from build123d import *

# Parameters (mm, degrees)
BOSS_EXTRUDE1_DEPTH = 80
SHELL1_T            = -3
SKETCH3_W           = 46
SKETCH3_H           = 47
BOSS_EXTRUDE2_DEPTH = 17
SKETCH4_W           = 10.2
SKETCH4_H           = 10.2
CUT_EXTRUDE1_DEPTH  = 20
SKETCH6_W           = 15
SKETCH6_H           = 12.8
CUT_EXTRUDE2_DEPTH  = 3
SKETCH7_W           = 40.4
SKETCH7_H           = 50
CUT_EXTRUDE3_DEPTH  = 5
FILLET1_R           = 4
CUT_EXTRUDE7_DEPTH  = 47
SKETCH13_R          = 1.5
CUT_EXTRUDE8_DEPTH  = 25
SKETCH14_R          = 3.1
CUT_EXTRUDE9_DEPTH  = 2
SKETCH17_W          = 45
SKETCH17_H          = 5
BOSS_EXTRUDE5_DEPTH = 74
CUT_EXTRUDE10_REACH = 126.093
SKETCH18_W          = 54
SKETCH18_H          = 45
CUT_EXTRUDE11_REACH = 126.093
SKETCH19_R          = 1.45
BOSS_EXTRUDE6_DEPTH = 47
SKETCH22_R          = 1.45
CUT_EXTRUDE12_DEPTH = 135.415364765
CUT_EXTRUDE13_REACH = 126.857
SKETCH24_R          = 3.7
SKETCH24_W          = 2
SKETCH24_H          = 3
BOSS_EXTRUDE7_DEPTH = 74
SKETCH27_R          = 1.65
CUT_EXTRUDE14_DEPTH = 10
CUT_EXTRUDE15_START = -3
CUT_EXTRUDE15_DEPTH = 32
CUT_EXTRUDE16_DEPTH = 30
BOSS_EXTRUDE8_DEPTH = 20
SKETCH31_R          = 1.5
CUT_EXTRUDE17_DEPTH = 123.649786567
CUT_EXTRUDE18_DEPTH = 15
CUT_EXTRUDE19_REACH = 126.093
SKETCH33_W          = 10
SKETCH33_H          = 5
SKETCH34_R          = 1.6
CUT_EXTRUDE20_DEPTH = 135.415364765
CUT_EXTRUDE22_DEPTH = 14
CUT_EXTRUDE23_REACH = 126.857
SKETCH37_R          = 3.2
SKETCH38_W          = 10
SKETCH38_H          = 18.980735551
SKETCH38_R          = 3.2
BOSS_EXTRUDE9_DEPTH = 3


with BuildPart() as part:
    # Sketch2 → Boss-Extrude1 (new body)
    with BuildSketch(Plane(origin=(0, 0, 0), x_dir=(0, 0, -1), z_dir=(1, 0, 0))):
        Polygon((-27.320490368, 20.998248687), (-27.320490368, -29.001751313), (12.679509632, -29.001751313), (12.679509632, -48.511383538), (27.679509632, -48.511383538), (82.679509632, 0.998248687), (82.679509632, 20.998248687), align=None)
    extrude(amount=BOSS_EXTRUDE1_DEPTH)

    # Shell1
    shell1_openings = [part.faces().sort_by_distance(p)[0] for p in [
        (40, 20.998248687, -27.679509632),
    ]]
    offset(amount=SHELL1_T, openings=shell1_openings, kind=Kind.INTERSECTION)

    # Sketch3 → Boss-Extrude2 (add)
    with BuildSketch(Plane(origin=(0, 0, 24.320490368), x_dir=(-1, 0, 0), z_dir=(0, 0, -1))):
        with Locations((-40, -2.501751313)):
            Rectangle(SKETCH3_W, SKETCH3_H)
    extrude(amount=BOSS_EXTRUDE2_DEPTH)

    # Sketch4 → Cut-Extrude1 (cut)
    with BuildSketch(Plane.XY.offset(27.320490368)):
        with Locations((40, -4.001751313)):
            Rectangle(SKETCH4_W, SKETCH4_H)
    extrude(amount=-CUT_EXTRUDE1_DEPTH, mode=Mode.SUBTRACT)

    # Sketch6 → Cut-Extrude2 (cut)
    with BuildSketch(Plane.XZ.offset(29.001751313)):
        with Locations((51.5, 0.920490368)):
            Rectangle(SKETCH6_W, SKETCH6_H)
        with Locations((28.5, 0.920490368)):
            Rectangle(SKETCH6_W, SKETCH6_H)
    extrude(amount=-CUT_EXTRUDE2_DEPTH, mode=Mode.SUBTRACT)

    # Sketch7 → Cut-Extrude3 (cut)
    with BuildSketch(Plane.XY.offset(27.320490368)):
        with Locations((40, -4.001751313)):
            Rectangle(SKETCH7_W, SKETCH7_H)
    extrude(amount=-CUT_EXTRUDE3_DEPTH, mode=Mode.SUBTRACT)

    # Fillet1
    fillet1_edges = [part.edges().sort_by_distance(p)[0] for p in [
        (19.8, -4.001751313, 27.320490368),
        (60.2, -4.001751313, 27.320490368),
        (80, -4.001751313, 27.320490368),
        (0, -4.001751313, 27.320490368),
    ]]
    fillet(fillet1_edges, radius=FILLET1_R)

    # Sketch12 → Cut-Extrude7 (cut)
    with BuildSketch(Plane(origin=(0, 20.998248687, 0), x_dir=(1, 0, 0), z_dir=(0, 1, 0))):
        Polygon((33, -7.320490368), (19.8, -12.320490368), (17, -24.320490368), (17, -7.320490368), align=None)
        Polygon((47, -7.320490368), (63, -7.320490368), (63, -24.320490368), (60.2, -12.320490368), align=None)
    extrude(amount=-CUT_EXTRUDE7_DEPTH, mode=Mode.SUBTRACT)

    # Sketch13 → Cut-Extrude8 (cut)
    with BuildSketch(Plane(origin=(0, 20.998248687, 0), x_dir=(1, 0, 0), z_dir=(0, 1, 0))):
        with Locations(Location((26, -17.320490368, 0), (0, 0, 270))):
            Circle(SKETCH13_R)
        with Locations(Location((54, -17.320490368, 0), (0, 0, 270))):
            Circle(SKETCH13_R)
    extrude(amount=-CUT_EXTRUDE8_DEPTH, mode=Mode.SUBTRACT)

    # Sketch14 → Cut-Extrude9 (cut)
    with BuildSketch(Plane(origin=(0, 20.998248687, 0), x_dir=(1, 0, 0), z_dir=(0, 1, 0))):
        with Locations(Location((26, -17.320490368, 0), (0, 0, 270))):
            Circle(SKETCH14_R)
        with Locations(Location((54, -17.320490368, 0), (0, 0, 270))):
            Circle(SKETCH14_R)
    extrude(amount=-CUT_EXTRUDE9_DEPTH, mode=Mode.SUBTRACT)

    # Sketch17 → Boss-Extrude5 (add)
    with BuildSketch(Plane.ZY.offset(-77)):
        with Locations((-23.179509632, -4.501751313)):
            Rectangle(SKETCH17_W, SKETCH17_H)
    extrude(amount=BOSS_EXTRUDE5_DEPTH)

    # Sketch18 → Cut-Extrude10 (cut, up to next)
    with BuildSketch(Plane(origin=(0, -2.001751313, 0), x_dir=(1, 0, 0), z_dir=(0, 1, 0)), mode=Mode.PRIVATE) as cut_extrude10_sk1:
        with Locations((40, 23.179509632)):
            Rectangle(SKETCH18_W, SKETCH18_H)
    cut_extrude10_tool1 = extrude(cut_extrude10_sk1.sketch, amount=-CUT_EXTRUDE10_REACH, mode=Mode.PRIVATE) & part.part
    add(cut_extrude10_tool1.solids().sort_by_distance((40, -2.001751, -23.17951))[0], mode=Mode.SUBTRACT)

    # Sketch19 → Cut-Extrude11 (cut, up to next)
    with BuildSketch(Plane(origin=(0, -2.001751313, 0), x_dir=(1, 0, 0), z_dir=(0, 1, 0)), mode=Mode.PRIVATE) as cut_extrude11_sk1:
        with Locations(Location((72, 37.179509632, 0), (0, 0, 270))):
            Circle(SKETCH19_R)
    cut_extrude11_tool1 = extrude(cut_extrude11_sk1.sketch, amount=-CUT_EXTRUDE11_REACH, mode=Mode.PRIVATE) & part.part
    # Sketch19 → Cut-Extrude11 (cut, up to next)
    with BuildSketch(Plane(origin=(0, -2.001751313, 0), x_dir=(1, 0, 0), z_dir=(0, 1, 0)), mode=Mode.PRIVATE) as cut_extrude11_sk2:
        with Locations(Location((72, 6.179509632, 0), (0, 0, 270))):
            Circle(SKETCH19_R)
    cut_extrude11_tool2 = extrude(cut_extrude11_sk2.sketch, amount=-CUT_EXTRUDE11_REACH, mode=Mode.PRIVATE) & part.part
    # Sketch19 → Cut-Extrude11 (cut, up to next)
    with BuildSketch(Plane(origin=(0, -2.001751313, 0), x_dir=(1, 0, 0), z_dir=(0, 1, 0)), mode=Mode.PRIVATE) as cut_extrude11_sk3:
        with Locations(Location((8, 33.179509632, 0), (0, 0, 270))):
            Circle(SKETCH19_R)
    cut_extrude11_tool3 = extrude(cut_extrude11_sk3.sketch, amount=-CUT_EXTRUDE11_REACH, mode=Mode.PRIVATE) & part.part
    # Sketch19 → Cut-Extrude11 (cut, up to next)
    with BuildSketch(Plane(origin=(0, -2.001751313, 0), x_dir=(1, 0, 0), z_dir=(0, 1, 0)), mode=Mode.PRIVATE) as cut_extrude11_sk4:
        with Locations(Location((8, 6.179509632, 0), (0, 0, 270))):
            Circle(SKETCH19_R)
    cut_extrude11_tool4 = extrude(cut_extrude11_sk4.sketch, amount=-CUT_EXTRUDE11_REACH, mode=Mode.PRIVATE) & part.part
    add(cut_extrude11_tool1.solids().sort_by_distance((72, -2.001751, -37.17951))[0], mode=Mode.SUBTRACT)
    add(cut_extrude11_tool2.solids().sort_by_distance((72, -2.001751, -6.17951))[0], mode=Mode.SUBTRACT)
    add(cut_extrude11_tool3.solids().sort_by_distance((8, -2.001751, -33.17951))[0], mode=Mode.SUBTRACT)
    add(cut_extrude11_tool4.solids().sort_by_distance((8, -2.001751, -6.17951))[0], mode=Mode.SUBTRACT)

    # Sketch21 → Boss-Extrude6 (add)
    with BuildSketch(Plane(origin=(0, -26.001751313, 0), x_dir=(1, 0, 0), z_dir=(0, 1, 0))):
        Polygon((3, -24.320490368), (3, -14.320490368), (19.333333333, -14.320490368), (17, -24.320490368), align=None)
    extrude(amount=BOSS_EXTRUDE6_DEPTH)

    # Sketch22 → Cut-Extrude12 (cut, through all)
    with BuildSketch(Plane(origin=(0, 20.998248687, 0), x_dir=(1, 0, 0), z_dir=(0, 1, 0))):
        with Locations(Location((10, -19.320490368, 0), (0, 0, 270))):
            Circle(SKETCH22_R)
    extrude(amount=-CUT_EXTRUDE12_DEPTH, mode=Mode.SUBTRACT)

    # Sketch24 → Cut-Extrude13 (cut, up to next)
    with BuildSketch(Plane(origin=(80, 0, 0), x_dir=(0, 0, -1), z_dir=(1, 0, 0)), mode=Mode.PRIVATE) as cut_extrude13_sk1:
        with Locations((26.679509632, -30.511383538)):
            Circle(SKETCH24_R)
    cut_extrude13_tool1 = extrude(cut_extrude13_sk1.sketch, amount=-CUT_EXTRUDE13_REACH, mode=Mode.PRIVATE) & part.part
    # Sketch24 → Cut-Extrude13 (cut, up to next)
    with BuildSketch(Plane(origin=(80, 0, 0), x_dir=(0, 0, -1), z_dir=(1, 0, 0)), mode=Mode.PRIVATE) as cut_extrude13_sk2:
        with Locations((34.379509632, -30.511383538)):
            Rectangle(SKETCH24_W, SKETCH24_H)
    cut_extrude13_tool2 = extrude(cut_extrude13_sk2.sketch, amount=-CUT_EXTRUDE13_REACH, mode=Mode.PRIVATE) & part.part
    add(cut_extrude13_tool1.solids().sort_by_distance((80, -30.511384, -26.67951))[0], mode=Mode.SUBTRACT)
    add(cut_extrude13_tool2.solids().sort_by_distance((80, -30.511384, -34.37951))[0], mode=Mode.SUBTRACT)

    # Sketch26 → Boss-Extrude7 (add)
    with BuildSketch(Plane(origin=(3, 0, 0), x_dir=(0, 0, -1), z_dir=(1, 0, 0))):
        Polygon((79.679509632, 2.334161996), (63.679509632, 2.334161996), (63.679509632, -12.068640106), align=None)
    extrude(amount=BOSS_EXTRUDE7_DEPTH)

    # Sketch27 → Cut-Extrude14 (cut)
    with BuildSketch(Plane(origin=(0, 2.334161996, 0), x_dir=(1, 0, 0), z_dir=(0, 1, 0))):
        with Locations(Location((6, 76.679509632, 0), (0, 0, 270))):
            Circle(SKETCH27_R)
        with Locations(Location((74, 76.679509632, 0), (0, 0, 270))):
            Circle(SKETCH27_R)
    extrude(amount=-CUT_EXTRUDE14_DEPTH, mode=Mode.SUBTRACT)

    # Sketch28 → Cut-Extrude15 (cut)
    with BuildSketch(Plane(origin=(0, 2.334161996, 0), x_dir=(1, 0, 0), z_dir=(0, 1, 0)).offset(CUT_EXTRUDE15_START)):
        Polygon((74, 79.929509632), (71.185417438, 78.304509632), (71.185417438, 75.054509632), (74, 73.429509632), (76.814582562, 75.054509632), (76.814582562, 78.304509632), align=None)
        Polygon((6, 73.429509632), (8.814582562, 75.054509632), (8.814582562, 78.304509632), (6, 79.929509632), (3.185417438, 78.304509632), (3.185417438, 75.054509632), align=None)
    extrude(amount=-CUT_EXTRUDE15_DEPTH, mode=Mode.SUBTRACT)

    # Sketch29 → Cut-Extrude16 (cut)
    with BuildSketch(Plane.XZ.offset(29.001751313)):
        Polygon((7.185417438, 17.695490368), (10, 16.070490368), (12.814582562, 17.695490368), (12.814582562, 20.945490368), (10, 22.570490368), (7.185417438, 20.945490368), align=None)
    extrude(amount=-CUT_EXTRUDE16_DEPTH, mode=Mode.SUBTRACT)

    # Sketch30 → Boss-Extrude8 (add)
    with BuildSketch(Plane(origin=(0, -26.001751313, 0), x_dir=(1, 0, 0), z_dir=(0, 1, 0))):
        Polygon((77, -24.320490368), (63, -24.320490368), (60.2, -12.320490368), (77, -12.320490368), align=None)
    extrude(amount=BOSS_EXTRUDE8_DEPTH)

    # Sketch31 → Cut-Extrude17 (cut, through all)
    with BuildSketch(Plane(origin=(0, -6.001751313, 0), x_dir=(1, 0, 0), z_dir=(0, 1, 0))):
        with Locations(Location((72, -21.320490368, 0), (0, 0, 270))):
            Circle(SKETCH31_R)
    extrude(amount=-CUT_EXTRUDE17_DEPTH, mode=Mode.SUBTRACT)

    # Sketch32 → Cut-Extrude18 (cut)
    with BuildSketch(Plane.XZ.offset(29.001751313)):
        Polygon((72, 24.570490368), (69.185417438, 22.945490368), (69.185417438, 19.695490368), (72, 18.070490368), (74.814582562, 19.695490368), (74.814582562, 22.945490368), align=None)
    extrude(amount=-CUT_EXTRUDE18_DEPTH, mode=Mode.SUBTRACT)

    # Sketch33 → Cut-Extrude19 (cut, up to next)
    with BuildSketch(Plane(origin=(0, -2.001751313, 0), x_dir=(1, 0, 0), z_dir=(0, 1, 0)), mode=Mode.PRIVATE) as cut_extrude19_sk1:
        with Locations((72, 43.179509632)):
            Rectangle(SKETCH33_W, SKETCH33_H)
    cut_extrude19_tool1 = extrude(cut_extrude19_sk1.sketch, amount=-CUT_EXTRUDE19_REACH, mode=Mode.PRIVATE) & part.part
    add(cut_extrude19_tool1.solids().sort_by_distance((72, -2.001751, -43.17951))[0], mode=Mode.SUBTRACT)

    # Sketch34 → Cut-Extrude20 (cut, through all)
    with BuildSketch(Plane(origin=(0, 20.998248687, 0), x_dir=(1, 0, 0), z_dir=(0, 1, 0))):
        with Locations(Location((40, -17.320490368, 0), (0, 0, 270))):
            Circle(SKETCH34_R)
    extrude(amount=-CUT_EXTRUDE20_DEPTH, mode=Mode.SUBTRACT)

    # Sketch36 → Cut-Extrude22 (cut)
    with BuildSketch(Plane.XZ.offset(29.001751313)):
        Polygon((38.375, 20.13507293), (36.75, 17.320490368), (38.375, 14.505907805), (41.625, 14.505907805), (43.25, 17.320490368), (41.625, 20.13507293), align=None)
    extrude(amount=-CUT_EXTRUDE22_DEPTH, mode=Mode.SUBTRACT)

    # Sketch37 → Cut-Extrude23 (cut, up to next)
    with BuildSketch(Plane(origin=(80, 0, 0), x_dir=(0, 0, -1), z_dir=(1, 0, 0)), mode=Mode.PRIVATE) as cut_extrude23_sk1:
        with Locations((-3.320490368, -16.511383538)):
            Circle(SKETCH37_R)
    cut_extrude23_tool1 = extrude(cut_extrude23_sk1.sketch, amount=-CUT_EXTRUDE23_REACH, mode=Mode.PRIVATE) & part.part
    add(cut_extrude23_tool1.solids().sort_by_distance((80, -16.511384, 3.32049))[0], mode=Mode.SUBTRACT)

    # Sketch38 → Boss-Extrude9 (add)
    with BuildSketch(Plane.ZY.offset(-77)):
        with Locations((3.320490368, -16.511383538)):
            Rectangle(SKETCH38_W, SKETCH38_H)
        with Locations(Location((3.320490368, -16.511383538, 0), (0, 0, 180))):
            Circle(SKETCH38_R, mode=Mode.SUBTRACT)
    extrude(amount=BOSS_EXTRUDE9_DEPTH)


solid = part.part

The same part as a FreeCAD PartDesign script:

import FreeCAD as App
import Part
import Sketcher
Q = App.Units.Quantity


def edges_at(feature, points):
    """Names of the edges that pass closest to the given points."""
    edges = feature.Shape.Edges
    near = lambda p: min(range(len(edges)), key=lambda i: edges[i].distToShape(Part.Vertex(*p))[0])
    return sorted({f"Edge{near(p) + 1}" for p in points})


def faces_at(feature, points):
    """Names of the faces that lie closest to the given points."""
    faces = feature.Shape.Faces
    near = lambda p: min(range(len(faces)), key=lambda i: faces[i].distToShape(Part.Vertex(*p))[0])
    return sorted({f"Face{near(p) + 1}" for p in points})


def add_polygon(sketch, points):
    """Adds a closed chain of lines whose ends are joined by coincident constraints."""
    first, n = sketch.GeometryCount, len(points)
    for a, b in zip(points, points[1:] + points[:1]):
        sketch.addGeometry(Part.LineSegment(App.Vector(*a, 0), App.Vector(*b, 0)), False)
    for i in range(n):
        sketch.addConstraint(Sketcher.Constraint("Coincident", first + i, 2, first + (i + 1) % n, 1))

doc = App.newDocument("Part")
body = doc.addObject("PartDesign::Body", "Body")

# Sketch on YZ plane
sketch1 = doc.addObject("Sketcher::SketchObject", "Sketch")
body.addObject(sketch1)
sketch1.AttachmentSupport = (doc.YZ_Plane, [""])
sketch1.MapMode = "FlatFace"
add_polygon(sketch1, [(21, 27), (-29, 27), (-29, -13), (-49, -13), (-49, -28), (1, -83), (21, -83)])  # lines 0-6
sketch1.addConstraint([
    Sketcher.Constraint("Horizontal", 0),
    Sketcher.Constraint("Vertical", 1),
    Sketcher.Constraint("Horizontal", 2),
    Sketcher.Constraint("Vertical", 3),
    Sketcher.Constraint("Horizontal", 5),
    Sketcher.Constraint("Vertical", 6),
    Sketcher.Constraint("DistanceX", 0, 2, 0, 1, Q("50 mm")),
    Sketcher.Constraint("DistanceX", 5, 1, 5, 2, Q("20 mm")),
    Sketcher.Constraint("DistanceY", 1, 2, 1, 1, Q("40 mm")),
    Sketcher.Constraint("DistanceY", 3, 2, 3, 1, Q("15 mm")),
    Sketcher.Constraint("DistanceY", 6, 1, 6, 2, Q("110 mm")),
    Sketcher.Constraint("DistanceX", 2, 2, 2, 1, Q("19.509632 mm")),
    Sketcher.Constraint("DistanceX", 0, 2, -1, 1, Q("29.001751 mm")),
    Sketcher.Constraint("DistanceY", -1, 1, 0, 2, Q("27.32049 mm")),
])
pad1 = doc.addObject("PartDesign::Pad", "Pad")
body.addObject(pad1)
pad1.Profile = sketch1
pad1.Length = 80
doc.recompute()

thickness = doc.addObject("PartDesign::Thickness", "Thickness")
body.addObject(thickness)
thickness.Base = (pad1, faces_at(pad1, [(40, 20.998, -27.68)]))
thickness.Value = 3
thickness.Reversed = True
thickness.Join = "Intersection"

# Sketch on XY plane
sketch2 = doc.addObject("Sketcher::SketchObject", "Sketch001")
body.addObject(sketch2)
sketch2.AttachmentSupport = (doc.XY_Plane, [""])
sketch2.MapMode = "FlatFace"
sketch2.AttachmentOffset = App.Placement(App.Vector(0, 0, 24.32049), App.Rotation())
add_polygon(sketch2, [(63, 21), (63, -26), (17, -26), (17, 21)])  # lines 0-3
sketch2.addConstraint([
    Sketcher.Constraint("Vertical", 0),
    Sketcher.Constraint("Horizontal", 1),
    Sketcher.Constraint("Vertical", 2),
    Sketcher.Constraint("Horizontal", 3),
    Sketcher.Constraint("DistanceX", 1, 2, 1, 1, Q("46 mm")),
    Sketcher.Constraint("DistanceY", 0, 2, 0, 1, Q("47 mm")),
    Sketcher.Constraint("DistanceX", -1, 1, 0, 2, Q("63 mm")),
    Sketcher.Constraint("DistanceY", 0, 2, -1, 1, Q("26.001751 mm")),
])
pad2 = doc.addObject("PartDesign::Pad", "Pad001")
body.addObject(pad2)
pad2.Profile = sketch2
pad2.Length = 17
pad2.Reversed = True

# Sketch on XY plane
sketch3 = doc.addObject("Sketcher::SketchObject", "Sketch002")
body.addObject(sketch3)
sketch3.AttachmentSupport = (doc.XY_Plane, [""])
sketch3.MapMode = "FlatFace"
sketch3.AttachmentOffset = App.Placement(App.Vector(0, 0, 27.32049), App.Rotation())
add_polygon(sketch3, [(35, 1), (35, -9), (45, -9), (45, 1)])  # lines 0-3
sketch3.addConstraint([
    Sketcher.Constraint("Vertical", 0),
    Sketcher.Constraint("Horizontal", 1),
    Sketcher.Constraint("Vertical", 2),
    Sketcher.Constraint("Horizontal", 3),
    Sketcher.Constraint("Equal", 3, 0),
    Sketcher.Constraint("DistanceX", 1, 1, 1, 2, Q("10.2 mm")),
    Sketcher.Constraint("DistanceX", -1, 1, 0, 2, Q("34.9 mm")),
    Sketcher.Constraint("DistanceY", 0, 2, -1, 1, Q("9.101751 mm")),
])
pocket1 = doc.addObject("PartDesign::Pocket", "Pocket")
body.addObject(pocket1)
pocket1.Profile = sketch3
pocket1.Length = 20

# Sketch on XZ plane
sketch4 = doc.addObject("Sketcher::SketchObject", "Sketch003")
body.addObject(sketch4)
sketch4.AttachmentSupport = (doc.XZ_Plane, [""])
sketch4.MapMode = "FlatFace"
sketch4.AttachmentOffset = App.Placement(App.Vector(0, 0, 29.001751), App.Rotation())
add_polygon(sketch4, [(44, 7), (44, -5), (59, -5), (59, 7)])  # lines 0-3
add_polygon(sketch4, [(21, 7), (21, -5), (36, -5), (36, 7)])  # lines 4-7
sketch4.addConstraint([
    Sketcher.Constraint("Vertical", 0),
    Sketcher.Constraint("Horizontal", 1),
    Sketcher.Constraint("Vertical", 2),
    Sketcher.Constraint("Horizontal", 3),
    Sketcher.Constraint("Vertical", 4),
    Sketcher.Constraint("Horizontal", 5),
    Sketcher.Constraint("Vertical", 6),
    Sketcher.Constraint("Horizontal", 7),
    Sketcher.Constraint("Horizontal", 1, 2, 4, 2),
    Sketcher.Constraint("Horizontal", 3, 2, 6, 2),
    Sketcher.Constraint("Equal", 3, 5),
    Sketcher.Constraint("DistanceX", 1, 1, 1, 2, Q("15 mm")),
    Sketcher.Constraint("DistanceY", 0, 2, 0, 1, Q("12.8 mm")),
    Sketcher.Constraint("DistanceX", -1, 1, 0, 2, Q("44 mm")),
    Sketcher.Constraint("DistanceX", -1, 1, 4, 2, Q("21 mm")),
    Sketcher.Constraint("DistanceY", 0, 2, -1, 1, Q("5.47951 mm")),
])
pocket2 = doc.addObject("PartDesign::Pocket", "Pocket001")
body.addObject(pocket2)
pocket2.Profile = sketch4
pocket2.Length = 3

# Sketch on XY plane
sketch5 = doc.addObject("Sketcher::SketchObject", "Sketch004")
body.addObject(sketch5)
sketch5.AttachmentSupport = (doc.XY_Plane, [""])
sketch5.MapMode = "FlatFace"
sketch5.AttachmentOffset = App.Placement(App.Vector(0, 0, 27.32049), App.Rotation())
add_polygon(sketch5, [(20, 21), (20, -29), (60, -29), (60, 21)])  # lines 0-3
sketch5.addConstraint([
    Sketcher.Constraint("Vertical", 0),
    Sketcher.Constraint("Horizontal", 1),
    Sketcher.Constraint("Vertical", 2),
    Sketcher.Constraint("Horizontal", 3),
    Sketcher.Constraint("DistanceY", 0, 2, 0, 1, Q("50 mm")),
    Sketcher.Constraint("DistanceX", 1, 1, 1, 2, Q("40.4 mm")),
    Sketcher.Constraint("DistanceX", -1, 1, 0, 2, Q("19.8 mm")),
    Sketcher.Constraint("DistanceY", 0, 2, -1, 1, Q("29.001751 mm")),
])
pocket3 = doc.addObject("PartDesign::Pocket", "Pocket002")
body.addObject(pocket3)
pocket3.Profile = sketch5
pocket3.Length = 5
doc.recompute()

fillet = doc.addObject("PartDesign::Fillet", "Fillet")
body.addObject(fillet)
fillet.Base = (pocket3, edges_at(pocket3, [
    (19.8, -4.002, 27.32),
    (60.2, -4.002, 27.32),
    (80, -4.002, 27.32),
    (0, -4.002, 27.32),
]))
fillet.Radius = 4

# Sketch on XZ plane
sketch6 = doc.addObject("Sketcher::SketchObject", "Sketch005")
body.addObject(sketch6)
sketch6.AttachmentSupport = (doc.XZ_Plane, [""])
sketch6.MapMode = "FlatFace"
sketch6.AttachmentOffset = App.Placement(App.Vector(0, 0, -20.998249), App.Rotation())
add_polygon(sketch6, [(20, 12), (33, 7), (17, 7), (17, 24)])  # lines 0-3
add_polygon(sketch6, [(63, 7), (47, 7), (60, 12), (63, 24)])  # lines 4-7
sketch6.addConstraint([
    Sketcher.Constraint("Horizontal", 1),
    Sketcher.Constraint("Vertical", 2),
    Sketcher.Constraint("Horizontal", 4),
    Sketcher.Constraint("Vertical", 7),
    Sketcher.Constraint("Horizontal", 1, 2, 4, 2),
    Sketcher.Constraint("Horizontal", 3, 2, 5, 2),
    Sketcher.Constraint("Horizontal", 2, 2, 6, 2),
    Sketcher.Constraint("Equal", 1, 4),
    Sketcher.Constraint("Equal", 0, 5),
    Sketcher.Constraint("DistanceX", 1, 2, 1, 1, Q("16 mm")),
    Sketcher.Constraint("DistanceY", 2, 1, 2, 2, Q("17 mm")),
    Sketcher.Constraint("DistanceX", -1, 1, 0, 2, Q("33 mm")),
    Sketcher.Constraint("DistanceX", -1, 1, 4, 2, Q("47 mm")),
    Sketcher.Constraint("DistanceY", 1, 2, 3, 2, Q("5 mm")),
    Sketcher.Constraint("DistanceX", -1, 1, 3, 2, Q("19.8 mm")),
    Sketcher.Constraint("DistanceY", -1, 1, 0, 2, Q("7.32049 mm")),
])
pocket4 = doc.addObject("PartDesign::Pocket", "Pocket003")
body.addObject(pocket4)
pocket4.Profile = sketch6
pocket4.Length = 47
pocket4.Reversed = True

# Sketch on XZ plane
sketch7 = doc.addObject("Sketcher::SketchObject", "Sketch006")
body.addObject(sketch7)
sketch7.AttachmentSupport = (doc.XZ_Plane, [""])
sketch7.MapMode = "FlatFace"
sketch7.AttachmentOffset = App.Placement(App.Vector(0, 0, -20.998249), App.Rotation())
sketch7.addGeometry([
    Part.Circle(App.Vector(26, 17.3, 0), App.Vector(0, 0, 1), 1.5),
    Part.Circle(App.Vector(54, 17.3, 0), App.Vector(0, 0, 1), 1.5),
], False)
sketch7.addConstraint([
    Sketcher.Constraint("Equal", 0, 1),
    Sketcher.Constraint("Horizontal", 0, 3, 1, 3),
    Sketcher.Constraint("Diameter", 0, Q("3 mm")),
    Sketcher.Constraint("DistanceX", -1, 1, 0, 3, Q("26 mm")),
    Sketcher.Constraint("DistanceX", -1, 1, 1, 3, Q("54 mm")),
    Sketcher.Constraint("DistanceY", -1, 1, 0, 3, Q("17.32049 mm")),
])
pocket5 = doc.addObject("PartDesign::Pocket", "Pocket004")
body.addObject(pocket5)
pocket5.Profile = sketch7
pocket5.Length = 25
pocket5.Reversed = True

# Sketch on XZ plane
sketch8 = doc.addObject("Sketcher::SketchObject", "Sketch007")
body.addObject(sketch8)
sketch8.AttachmentSupport = (doc.XZ_Plane, [""])
sketch8.MapMode = "FlatFace"
sketch8.AttachmentOffset = App.Placement(App.Vector(0, 0, -20.998249), App.Rotation())
sketch8.addGeometry([
    Part.Circle(App.Vector(26, 17.3, 0), App.Vector(0, 0, 1), 3.1),
    Part.Circle(App.Vector(54, 17.3, 0), App.Vector(0, 0, 1), 3.1),
], False)
sketch8.addConstraint([
    Sketcher.Constraint("Equal", 0, 1),
    Sketcher.Constraint("Horizontal", 0, 3, 1, 3),
    Sketcher.Constraint("Diameter", 0, Q("6.2 mm")),
    Sketcher.Constraint("DistanceX", -1, 1, 0, 3, Q("26 mm")),
    Sketcher.Constraint("DistanceX", -1, 1, 1, 3, Q("54 mm")),
    Sketcher.Constraint("DistanceY", -1, 1, 0, 3, Q("17.32049 mm")),
])
pocket6 = doc.addObject("PartDesign::Pocket", "Pocket005")
body.addObject(pocket6)
pocket6.Profile = sketch8
pocket6.Length = 2
pocket6.Reversed = True

# Sketch on YZ plane
sketch9 = doc.addObject("Sketcher::SketchObject", "Sketch008")
body.addObject(sketch9)
sketch9.AttachmentSupport = (doc.YZ_Plane, [""])
sketch9.MapMode = "FlatFace"
sketch9.AttachmentOffset = App.Placement(App.Vector(0, 0, 77), App.Rotation())
add_polygon(sketch9, [(-2, -46), (-7, -46), (-7, -1), (-2, -1)])  # lines 0-3
sketch9.addConstraint([
    Sketcher.Constraint("Horizontal", 0),
    Sketcher.Constraint("Vertical", 1),
    Sketcher.Constraint("Horizontal", 2),
    Sketcher.Constraint("Vertical", 3),
    Sketcher.Constraint("DistanceX", 0, 2, 0, 1, Q("5 mm")),
    Sketcher.Constraint("DistanceY", 1, 1, 1, 2, Q("45 mm")),
    Sketcher.Constraint("DistanceX", 0, 2, -1, 1, Q("7.001751 mm")),
    Sketcher.Constraint("DistanceY", 0, 2, -1, 1, Q("45.67951 mm")),
])
pad3 = doc.addObject("PartDesign::Pad", "Pad002")
body.addObject(pad3)
pad3.Profile = sketch9
pad3.Length = 74
pad3.Reversed = True

# Sketch on XZ plane
sketch10 = doc.addObject("Sketcher::SketchObject", "Sketch009")
body.addObject(sketch10)
sketch10.AttachmentSupport = (doc.XZ_Plane, [""])
sketch10.MapMode = "FlatFace"
sketch10.AttachmentOffset = App.Placement(App.Vector(0, 0, 2.001751), App.Rotation())
add_polygon(sketch10, [(13, -46), (13, -1), (67, -1), (67, -46)])  # lines 0-3
sketch10.addConstraint([
    Sketcher.Constraint("Vertical", 0),
    Sketcher.Constraint("Horizontal", 1),
    Sketcher.Constraint("Vertical", 2),
    Sketcher.Constraint("Horizontal", 3),
    Sketcher.Constraint("DistanceX", 1, 1, 1, 2, Q("54 mm")),
    Sketcher.Constraint("DistanceY", 0, 1, 0, 2, Q("45 mm")),
    Sketcher.Constraint("DistanceX", -1, 1, 0, 2, Q("13 mm")),
    Sketcher.Constraint("DistanceY", 0, 2, -1, 1, Q("0.67951 mm")),
])
pocket7 = doc.addObject("PartDesign::Pocket", "Pocket006")
body.addObject(pocket7)
pocket7.Profile = sketch10
pocket7.Type = "UpToFirst"
pocket7.Reversed = True

# Sketch on XZ plane
sketch11 = doc.addObject("Sketcher::SketchObject", "Sketch010")
body.addObject(sketch11)
sketch11.AttachmentSupport = (doc.XZ_Plane, [""])
sketch11.MapMode = "FlatFace"
sketch11.AttachmentOffset = App.Placement(App.Vector(0, 0, 2.001751), App.Rotation())
sketch11.addGeometry(Part.Circle(App.Vector(72, -37.2, 0), App.Vector(0, 0, 1), 1.4), False)
sketch11.addConstraint([
    Sketcher.Constraint("Diameter", 0, Q("2.9 mm")),
    Sketcher.Constraint("DistanceX", -1, 1, 0, 3, Q("72 mm")),
    Sketcher.Constraint("DistanceY", 0, 3, -1, 1, Q("37.17951 mm")),
])
pocket8 = doc.addObject("PartDesign::Pocket", "Pocket007")
body.addObject(pocket8)
pocket8.Profile = sketch11
pocket8.Type = "UpToFirst"
pocket8.Reversed = True

# Sketch on XZ plane
sketch12 = doc.addObject("Sketcher::SketchObject", "Sketch011")
body.addObject(sketch12)
sketch12.AttachmentSupport = (doc.XZ_Plane, [""])
sketch12.MapMode = "FlatFace"
sketch12.AttachmentOffset = App.Placement(App.Vector(0, 0, 2.001751), App.Rotation())
sketch12.addGeometry(Part.Circle(App.Vector(72, -6.2, 0), App.Vector(0, 0, 1), 1.4), False)
sketch12.addConstraint([
    Sketcher.Constraint("Diameter", 0, Q("2.9 mm")),
    Sketcher.Constraint("DistanceX", -1, 1, 0, 3, Q("72 mm")),
    Sketcher.Constraint("DistanceY", 0, 3, -1, 1, Q("6.17951 mm")),
])
pocket9 = doc.addObject("PartDesign::Pocket", "Pocket008")
body.addObject(pocket9)
pocket9.Profile = sketch12
pocket9.Type = "UpToFirst"
pocket9.Reversed = True

# Sketch on XZ plane
sketch13 = doc.addObject("Sketcher::SketchObject", "Sketch012")
body.addObject(sketch13)
sketch13.AttachmentSupport = (doc.XZ_Plane, [""])
sketch13.MapMode = "FlatFace"
sketch13.AttachmentOffset = App.Placement(App.Vector(0, 0, 2.001751), App.Rotation())
sketch13.addGeometry(Part.Circle(App.Vector(8, -33.2, 0), App.Vector(0, 0, 1), 1.4), False)
sketch13.addConstraint([
    Sketcher.Constraint("Diameter", 0, Q("2.9 mm")),
    Sketcher.Constraint("DistanceX", -1, 1, 0, 3, Q("8 mm")),
    Sketcher.Constraint("DistanceY", 0, 3, -1, 1, Q("33.17951 mm")),
])
pocket10 = doc.addObject("PartDesign::Pocket", "Pocket009")
body.addObject(pocket10)
pocket10.Profile = sketch13
pocket10.Type = "UpToFirst"
pocket10.Reversed = True

# Sketch on XZ plane
sketch14 = doc.addObject("Sketcher::SketchObject", "Sketch013")
body.addObject(sketch14)
sketch14.AttachmentSupport = (doc.XZ_Plane, [""])
sketch14.MapMode = "FlatFace"
sketch14.AttachmentOffset = App.Placement(App.Vector(0, 0, 2.001751), App.Rotation())
sketch14.addGeometry(Part.Circle(App.Vector(8, -6.2, 0), App.Vector(0, 0, 1), 1.4), False)
sketch14.addConstraint([
    Sketcher.Constraint("Diameter", 0, Q("2.9 mm")),
    Sketcher.Constraint("DistanceX", -1, 1, 0, 3, Q("8 mm")),
    Sketcher.Constraint("DistanceY", 0, 3, -1, 1, Q("6.17951 mm")),
])
pocket11 = doc.addObject("PartDesign::Pocket", "Pocket010")
body.addObject(pocket11)
pocket11.Profile = sketch14
pocket11.Type = "UpToFirst"
pocket11.Reversed = True

# Sketch on XZ plane
sketch15 = doc.addObject("Sketcher::SketchObject", "Sketch014")
body.addObject(sketch15)
sketch15.AttachmentSupport = (doc.XZ_Plane, [""])
sketch15.MapMode = "FlatFace"
sketch15.AttachmentOffset = App.Placement(App.Vector(0, 0, 26.001751), App.Rotation())
add_polygon(sketch15, [(3, 14), (3, 24), (17, 24), (19, 14)])  # lines 0-3
sketch15.addConstraint([
    Sketcher.Constraint("Vertical", 0),
    Sketcher.Constraint("Horizontal", 1),
    Sketcher.Constraint("Horizontal", 3),
    Sketcher.Constraint("DistanceX", 1, 1, 1, 2, Q("14 mm")),
    Sketcher.Constraint("DistanceY", 0, 1, 0, 2, Q("10 mm")),
    Sketcher.Constraint("DistanceX", -1, 1, 0, 2, Q("3 mm")),
    Sketcher.Constraint("DistanceX", 3, 2, 3, 1, Q("16.333333 mm")),
    Sketcher.Constraint("DistanceY", -1, 1, 0, 2, Q("24.32049 mm")),
])
pad4 = doc.addObject("PartDesign::Pad", "Pad003")
body.addObject(pad4)
pad4.Profile = sketch15
pad4.Length = 47
pad4.Reversed = True

# Sketch on XZ plane
sketch16 = doc.addObject("Sketcher::SketchObject", "Sketch015")
body.addObject(sketch16)
sketch16.AttachmentSupport = (doc.XZ_Plane, [""])
sketch16.MapMode = "FlatFace"
sketch16.AttachmentOffset = App.Placement(App.Vector(0, 0, -20.998249), App.Rotation())
sketch16.addGeometry(Part.Circle(App.Vector(10, 19.3, 0), App.Vector(0, 0, 1), 1.4), False)
sketch16.addConstraint([
    Sketcher.Constraint("Diameter", 0, Q("2.9 mm")),
    Sketcher.Constraint("DistanceX", -1, 1, 0, 3, Q("10 mm")),
    Sketcher.Constraint("DistanceY", -1, 1, 0, 3, Q("19.32049 mm")),
])
pocket12 = doc.addObject("PartDesign::Pocket", "Pocket011")
body.addObject(pocket12)
pocket12.Profile = sketch16
pocket12.Type = "ThroughAll"
pocket12.Reversed = True

# Sketch on YZ plane
sketch17 = doc.addObject("Sketcher::SketchObject", "Sketch016")
body.addObject(sketch17)
sketch17.AttachmentSupport = (doc.YZ_Plane, [""])
sketch17.MapMode = "FlatFace"
sketch17.AttachmentOffset = App.Placement(App.Vector(0, 0, 80), App.Rotation())
sketch17.addGeometry(Part.Circle(App.Vector(-30.5, -26.7, 0), App.Vector(0, 0, 1), 3.7), False)
sketch17.addConstraint([
    Sketcher.Constraint("Diameter", 0, Q("7.4 mm")),
    Sketcher.Constraint("DistanceY", 0, 3, -1, 1, Q("26.67951 mm")),
    Sketcher.Constraint("DistanceX", 0, 3, -1, 1, Q("30.511384 mm")),
])
pocket13 = doc.addObject("PartDesign::Pocket", "Pocket012")
body.addObject(pocket13)
pocket13.Profile = sketch17
pocket13.Type = "UpToFirst"

# Sketch on YZ plane
sketch18 = doc.addObject("Sketcher::SketchObject", "Sketch017")
body.addObject(sketch18)
sketch18.AttachmentSupport = (doc.YZ_Plane, [""])
sketch18.MapMode = "FlatFace"
sketch18.AttachmentOffset = App.Placement(App.Vector(0, 0, 80), App.Rotation())
add_polygon(sketch18, [(-29, -33.4), (-32, -33.4), (-32, -35.4), (-29, -35.4)])  # lines 0-3
sketch18.addConstraint([
    Sketcher.Constraint("Horizontal", 0),
    Sketcher.Constraint("Vertical", 1),
    Sketcher.Constraint("Horizontal", 2),
    Sketcher.Constraint("Vertical", 3),
    Sketcher.Constraint("DistanceX", 0, 2, 0, 1, Q("3 mm")),
    Sketcher.Constraint("DistanceY", 1, 2, 1, 1, Q("2 mm")),
    Sketcher.Constraint("DistanceY", 0, 2, -1, 1, Q("33.37951 mm")),
    Sketcher.Constraint("DistanceX", 0, 2, -1, 1, Q("32.011384 mm")),
])
pocket14 = doc.addObject("PartDesign::Pocket", "Pocket013")
body.addObject(pocket14)
pocket14.Profile = sketch18
pocket14.Type = "UpToFirst"

# Sketch on YZ plane
sketch19 = doc.addObject("Sketcher::SketchObject", "Sketch018")
body.addObject(sketch19)
sketch19.AttachmentSupport = (doc.YZ_Plane, [""])
sketch19.MapMode = "FlatFace"
sketch19.AttachmentOffset = App.Placement(App.Vector(0, 0, 3), App.Rotation())
add_polygon(sketch19, [(2, -80), (2, -64), (-12, -64)])  # lines 0-2
sketch19.addConstraint([
    Sketcher.Constraint("Vertical", 0),
    Sketcher.Constraint("Horizontal", 1),
    Sketcher.Constraint("DistanceY", 0, 1, 0, 2, Q("16 mm")),
    Sketcher.Constraint("DistanceX", 1, 2, 1, 1, Q("14.402802 mm")),
    Sketcher.Constraint("DistanceX", -1, 1, 0, 2, Q("2.334162 mm")),
    Sketcher.Constraint("DistanceY", 0, 2, -1, 1, Q("63.67951 mm")),
])
pad5 = doc.addObject("PartDesign::Pad", "Pad004")
body.addObject(pad5)
pad5.Profile = sketch19
pad5.Length = 74

# Sketch on XZ plane
sketch20 = doc.addObject("Sketcher::SketchObject", "Sketch019")
body.addObject(sketch20)
sketch20.AttachmentSupport = (doc.XZ_Plane, [""])
sketch20.MapMode = "FlatFace"
sketch20.AttachmentOffset = App.Placement(App.Vector(0, 0, -2.334162), App.Rotation())
sketch20.addGeometry([
    Part.Circle(App.Vector(6, -76.7, 0), App.Vector(0, 0, 1), 1.6),
    Part.Circle(App.Vector(74, -76.7, 0), App.Vector(0, 0, 1), 1.6),
], False)
sketch20.addConstraint([
    Sketcher.Constraint("Equal", 0, 1),
    Sketcher.Constraint("Horizontal", 0, 3, 1, 3),
    Sketcher.Constraint("Diameter", 0, Q("3.3 mm")),
    Sketcher.Constraint("DistanceX", -1, 1, 0, 3, Q("6 mm")),
    Sketcher.Constraint("DistanceX", -1, 1, 1, 3, Q("74 mm")),
    Sketcher.Constraint("DistanceY", 0, 3, -1, 1, Q("76.67951 mm")),
])
pocket15 = doc.addObject("PartDesign::Pocket", "Pocket014")
body.addObject(pocket15)
pocket15.Profile = sketch20
pocket15.Length = 10
pocket15.Reversed = True

# Sketch on XZ plane
sketch21 = doc.addObject("Sketcher::SketchObject", "Sketch020")
body.addObject(sketch21)
sketch21.AttachmentSupport = (doc.XZ_Plane, [""])
sketch21.MapMode = "FlatFace"
sketch21.AttachmentOffset = App.Placement(App.Vector(0, 0, 0.665838), App.Rotation())
add_polygon(sketch21, [(74, -79.9), (71.2, -78.3), (71.2, -75.1), (74, -73.4), (76.8, -75.1), (76.8, -78.3)])  # lines 0-5
add_polygon(sketch21, [(6, -73.4), (8.8, -75.1), (8.8, -78.3), (6, -79.9), (3.2, -78.3), (3.2, -75.1)])  # lines 6-11
sketch21.addConstraint([
    Sketcher.Constraint("Vertical", 1),
    Sketcher.Constraint("Vertical", 4),
    Sketcher.Constraint("Vertical", 7),
    Sketcher.Constraint("Vertical", 10),
    Sketcher.Constraint("Parallel", 0, 3),
    Sketcher.Constraint("Parallel", 2, 5),
    Sketcher.Constraint("Parallel", 3, 6),
    Sketcher.Constraint("Parallel", 5, 8),
    Sketcher.Constraint("Parallel", 6, 9),
    Sketcher.Constraint("Parallel", 8, 11),
    Sketcher.Constraint("Horizontal", 1, 2, 3, 2),
    Sketcher.Constraint("Horizontal", 0, 2, 4, 2),
    Sketcher.Constraint("Horizontal", 3, 2, 6, 2),
    Sketcher.Constraint("Horizontal", 4, 2, 7, 2),
    Sketcher.Constraint("Horizontal", 5, 2, 8, 2),
    Sketcher.Constraint("Horizontal", 7, 2, 9, 2),
    Sketcher.Constraint("Horizontal", 6, 2, 10, 2),
    Sketcher.Constraint("Vertical", 2, 2, 5, 2),
    Sketcher.Constraint("Angle", 0, Q("150 deg")),
    Sketcher.Constraint("DistanceX", -1, 1, 2, 2, Q("74 mm")),
    Sketcher.Constraint("DistanceX", -1, 1, 8, 2, Q("6 mm")),
    Sketcher.Constraint("DistanceY", 1, 1, 1, 2, Q("3.25 mm")),
    Sketcher.Constraint("DistanceY", 5, 2, 2, 2, Q("6.5 mm")),
    Sketcher.Constraint("DistanceY", 0, 2, -1, 1, Q("78.30451 mm")),
])
pocket16 = doc.addObject("PartDesign::Pocket", "Pocket015")
body.addObject(pocket16)
pocket16.Profile = sketch21
pocket16.Length = 32
pocket16.Reversed = True

# Sketch on XZ plane
sketch22 = doc.addObject("Sketcher::SketchObject", "Sketch021")
body.addObject(sketch22)
sketch22.AttachmentSupport = (doc.XZ_Plane, [""])
sketch22.MapMode = "FlatFace"
sketch22.AttachmentOffset = App.Placement(App.Vector(0, 0, 29.001751), App.Rotation())
add_polygon(sketch22, [(7.2, 17.7), (10, 16.1), (12.8, 17.7), (12.8, 20.9), (10, 22.6), (7.2, 20.9)])  # lines 0-5
sketch22.addConstraint([
    Sketcher.Constraint("Vertical", 2),
    Sketcher.Constraint("Vertical", 5),
    Sketcher.Constraint("Parallel", 0, 3),
    Sketcher.Constraint("Parallel", 1, 4),
    Sketcher.Constraint("Horizontal", 2, 2, 4, 2),
    Sketcher.Constraint("Horizontal", 1, 2, 5, 2),
    Sketcher.Constraint("Vertical", 0, 2, 3, 2),
    Sketcher.Constraint("Angle", 0, Q("-30 deg")),
    Sketcher.Constraint("DistanceX", -1, 1, 0, 2, Q("10 mm")),
    Sketcher.Constraint("DistanceY", 2, 1, 2, 2, Q("3.25 mm")),
    Sketcher.Constraint("DistanceY", 0, 2, 3, 2, Q("6.5 mm")),
    Sketcher.Constraint("DistanceY", -1, 1, 0, 2, Q("16.07049 mm")),
])
pocket17 = doc.addObject("PartDesign::Pocket", "Pocket016")
body.addObject(pocket17)
pocket17.Profile = sketch22
pocket17.Length = 30

# Sketch on XZ plane
sketch23 = doc.addObject("Sketcher::SketchObject", "Sketch022")
body.addObject(sketch23)
sketch23.AttachmentSupport = (doc.XZ_Plane, [""])
sketch23.MapMode = "FlatFace"
sketch23.AttachmentOffset = App.Placement(App.Vector(0, 0, 26.001751), App.Rotation())
add_polygon(sketch23, [(63, 24), (77, 24), (77, 12), (60, 12)])  # lines 0-3
sketch23.addConstraint([
    Sketcher.Constraint("Horizontal", 0),
    Sketcher.Constraint("Vertical", 1),
    Sketcher.Constraint("Horizontal", 2),
    Sketcher.Constraint("DistanceX", 0, 1, 0, 2, Q("14 mm")),
    Sketcher.Constraint("DistanceY", 1, 2, 1, 1, Q("12 mm")),
    Sketcher.Constraint("DistanceX", 2, 2, 2, 1, Q("16.8 mm")),
    Sketcher.Constraint("DistanceX", -1, 1, 0, 2, Q("77 mm")),
    Sketcher.Constraint("DistanceY", -1, 1, 0, 2, Q("24.32049 mm")),
])
pad6 = doc.addObject("PartDesign::Pad", "Pad005")
body.addObject(pad6)
pad6.Profile = sketch23
pad6.Length = 20
pad6.Reversed = True

# Sketch on XZ plane
sketch24 = doc.addObject("Sketcher::SketchObject", "Sketch023")
body.addObject(sketch24)
sketch24.AttachmentSupport = (doc.XZ_Plane, [""])
sketch24.MapMode = "FlatFace"
sketch24.AttachmentOffset = App.Placement(App.Vector(0, 0, 6.001751), App.Rotation())
sketch24.addGeometry(Part.Circle(App.Vector(72, 21.3, 0), App.Vector(0, 0, 1), 1.5), False)
sketch24.addConstraint([
    Sketcher.Constraint("Diameter", 0, Q("3 mm")),
    Sketcher.Constraint("DistanceX", -1, 1, 0, 3, Q("72 mm")),
    Sketcher.Constraint("DistanceY", -1, 1, 0, 3, Q("21.32049 mm")),
])
pocket18 = doc.addObject("PartDesign::Pocket", "Pocket017")
body.addObject(pocket18)
pocket18.Profile = sketch24
pocket18.Type = "ThroughAll"
pocket18.Reversed = True

# Sketch on XZ plane
sketch25 = doc.addObject("Sketcher::SketchObject", "Sketch024")
body.addObject(sketch25)
sketch25.AttachmentSupport = (doc.XZ_Plane, [""])
sketch25.MapMode = "FlatFace"
sketch25.AttachmentOffset = App.Placement(App.Vector(0, 0, 29.001751), App.Rotation())
add_polygon(sketch25, [(72, 24.6), (69.2, 22.9), (69.2, 19.7), (72, 18.1), (74.8, 19.7), (74.8, 22.9)])  # lines 0-5
sketch25.addConstraint([
    Sketcher.Constraint("Vertical", 1),
    Sketcher.Constraint("Vertical", 4),
    Sketcher.Constraint("Parallel", 0, 3),
    Sketcher.Constraint("Parallel", 2, 5),
    Sketcher.Constraint("Horizontal", 1, 2, 3, 2),
    Sketcher.Constraint("Horizontal", 0, 2, 4, 2),
    Sketcher.Constraint("Vertical", 2, 2, 5, 2),
    Sketcher.Constraint("Angle", 0, Q("-150 deg")),
    Sketcher.Constraint("DistanceX", -1, 1, 2, 2, Q("72 mm")),
    Sketcher.Constraint("DistanceY", 1, 2, 1, 1, Q("3.25 mm")),
    Sketcher.Constraint("DistanceY", 2, 2, 5, 2, Q("6.5 mm")),
    Sketcher.Constraint("DistanceY", -1, 1, 0, 2, Q("22.94549 mm")),
])
pocket19 = doc.addObject("PartDesign::Pocket", "Pocket018")
body.addObject(pocket19)
pocket19.Profile = sketch25
pocket19.Length = 15

# Sketch on XZ plane
sketch26 = doc.addObject("Sketcher::SketchObject", "Sketch025")
body.addObject(sketch26)
sketch26.AttachmentSupport = (doc.XZ_Plane, [""])
sketch26.MapMode = "FlatFace"
sketch26.AttachmentOffset = App.Placement(App.Vector(0, 0, 2.001751), App.Rotation())
add_polygon(sketch26, [(67, -46), (67, -41), (77, -41), (77, -46)])  # lines 0-3
sketch26.addConstraint([
    Sketcher.Constraint("Vertical", 0),
    Sketcher.Constraint("Horizontal", 1),
    Sketcher.Constraint("Vertical", 2),
    Sketcher.Constraint("Horizontal", 3),
    Sketcher.Constraint("DistanceX", 1, 1, 1, 2, Q("10 mm")),
    Sketcher.Constraint("DistanceY", 0, 1, 0, 2, Q("5 mm")),
    Sketcher.Constraint("DistanceX", -1, 1, 0, 2, Q("67 mm")),
    Sketcher.Constraint("DistanceY", 0, 2, -1, 1, Q("40.67951 mm")),
])
pocket20 = doc.addObject("PartDesign::Pocket", "Pocket019")
body.addObject(pocket20)
pocket20.Profile = sketch26
pocket20.Type = "UpToFirst"
pocket20.Reversed = True

# Sketch on XZ plane
sketch27 = doc.addObject("Sketcher::SketchObject", "Sketch026")
body.addObject(sketch27)
sketch27.AttachmentSupport = (doc.XZ_Plane, [""])
sketch27.MapMode = "FlatFace"
sketch27.AttachmentOffset = App.Placement(App.Vector(0, 0, -20.998249), App.Rotation())
sketch27.addGeometry(Part.Circle(App.Vector(40, 17.3, 0), App.Vector(0, 0, 1), 1.6), False)
sketch27.addConstraint([
    Sketcher.Constraint("Diameter", 0, Q("3.2 mm")),
    Sketcher.Constraint("DistanceX", -1, 1, 0, 3, Q("40 mm")),
    Sketcher.Constraint("DistanceY", -1, 1, 0, 3, Q("17.32049 mm")),
])
pocket21 = doc.addObject("PartDesign::Pocket", "Pocket020")
body.addObject(pocket21)
pocket21.Profile = sketch27
pocket21.Type = "ThroughAll"
pocket21.Reversed = True

# Sketch on XZ plane
sketch28 = doc.addObject("Sketcher::SketchObject", "Sketch027")
body.addObject(sketch28)
sketch28.AttachmentSupport = (doc.XZ_Plane, [""])
sketch28.MapMode = "FlatFace"
sketch28.AttachmentOffset = App.Placement(App.Vector(0, 0, 29.001751), App.Rotation())
add_polygon(sketch28, [(38.4, 20.1), (36.8, 17.3), (38.4, 14.5), (41.6, 14.5), (43.2, 17.3), (41.6, 20.1)])  # lines 0-5
sketch28.addConstraint([
    Sketcher.Constraint("Horizontal", 2),
    Sketcher.Constraint("Horizontal", 5),
    Sketcher.Constraint("Parallel", 0, 3),
    Sketcher.Constraint("Parallel", 1, 4),
    Sketcher.Constraint("Horizontal", 0, 2, 3, 2),
    Sketcher.Constraint("Vertical", 2, 2, 4, 2),
    Sketcher.Constraint("Vertical", 1, 2, 5, 2),
    Sketcher.Constraint("Angle", 0, Q("-120 deg")),
    Sketcher.Constraint("DistanceX", 2, 1, 2, 2, Q("3.25 mm")),
    Sketcher.Constraint("DistanceX", 0, 2, 3, 2, Q("6.5 mm")),
    Sketcher.Constraint("DistanceX", -1, 1, 0, 2, Q("36.75 mm")),
    Sketcher.Constraint("DistanceY", -1, 1, 0, 2, Q("17.32049 mm")),
])
pocket22 = doc.addObject("PartDesign::Pocket", "Pocket021")
body.addObject(pocket22)
pocket22.Profile = sketch28
pocket22.Length = 14

# Sketch on YZ plane
sketch29 = doc.addObject("Sketcher::SketchObject", "Sketch028")
body.addObject(sketch29)
sketch29.AttachmentSupport = (doc.YZ_Plane, [""])
sketch29.MapMode = "FlatFace"
sketch29.AttachmentOffset = App.Placement(App.Vector(0, 0, 80), App.Rotation())
sketch29.addGeometry(Part.Circle(App.Vector(-16.5, 3.3, 0), App.Vector(0, 0, 1), 3.2), False)
sketch29.addConstraint([
    Sketcher.Constraint("Diameter", 0, Q("6.4 mm")),
    Sketcher.Constraint("DistanceY", -1, 1, 0, 3, Q("3.32049 mm")),
    Sketcher.Constraint("DistanceX", 0, 3, -1, 1, Q("16.511384 mm")),
])
pocket23 = doc.addObject("PartDesign::Pocket", "Pocket022")
body.addObject(pocket23)
pocket23.Profile = sketch29
pocket23.Type = "UpToFirst"

# Sketch on YZ plane
sketch30 = doc.addObject("Sketcher::SketchObject", "Sketch029")
body.addObject(sketch30)
sketch30.AttachmentSupport = (doc.YZ_Plane, [""])
sketch30.MapMode = "FlatFace"
sketch30.AttachmentOffset = App.Placement(App.Vector(0, 0, 77), App.Rotation())
add_polygon(sketch30, [(-7, -1.7), (-26, -1.7), (-26, 8.3), (-7, 8.3)])  # lines 0-3
sketch30.addGeometry(Part.Circle(App.Vector(-16.5, 3.3, 0), App.Vector(0, 0, 1), 3.2), False)  # 4
sketch30.addConstraint([
    Sketcher.Constraint("Horizontal", 0),
    Sketcher.Constraint("Vertical", 1),
    Sketcher.Constraint("Horizontal", 2),
    Sketcher.Constraint("Vertical", 3),
    Sketcher.Constraint("Diameter", 4, Q("6.4 mm")),
    Sketcher.Constraint("DistanceY", 1, 1, 1, 2, Q("10 mm")),
    Sketcher.Constraint("DistanceY", 0, 2, 4, 3, Q("5 mm")),
    Sketcher.Constraint("DistanceX", 0, 2, 0, 1, Q("18.980736 mm")),
    Sketcher.Constraint("DistanceY", -1, 1, 4, 3, Q("3.32049 mm")),
    Sketcher.Constraint("DistanceX", 0, 2, -1, 1, Q("26.001751 mm")),
    Sketcher.Constraint("DistanceX", 4, 3, -1, 1, Q("16.511384 mm")),
])
pad7 = doc.addObject("PartDesign::Pad", "Pad006")
body.addObject(pad7)
pad7.Profile = sketch30
pad7.Length = 3
pad7.Reversed = True

doc.recompute()
